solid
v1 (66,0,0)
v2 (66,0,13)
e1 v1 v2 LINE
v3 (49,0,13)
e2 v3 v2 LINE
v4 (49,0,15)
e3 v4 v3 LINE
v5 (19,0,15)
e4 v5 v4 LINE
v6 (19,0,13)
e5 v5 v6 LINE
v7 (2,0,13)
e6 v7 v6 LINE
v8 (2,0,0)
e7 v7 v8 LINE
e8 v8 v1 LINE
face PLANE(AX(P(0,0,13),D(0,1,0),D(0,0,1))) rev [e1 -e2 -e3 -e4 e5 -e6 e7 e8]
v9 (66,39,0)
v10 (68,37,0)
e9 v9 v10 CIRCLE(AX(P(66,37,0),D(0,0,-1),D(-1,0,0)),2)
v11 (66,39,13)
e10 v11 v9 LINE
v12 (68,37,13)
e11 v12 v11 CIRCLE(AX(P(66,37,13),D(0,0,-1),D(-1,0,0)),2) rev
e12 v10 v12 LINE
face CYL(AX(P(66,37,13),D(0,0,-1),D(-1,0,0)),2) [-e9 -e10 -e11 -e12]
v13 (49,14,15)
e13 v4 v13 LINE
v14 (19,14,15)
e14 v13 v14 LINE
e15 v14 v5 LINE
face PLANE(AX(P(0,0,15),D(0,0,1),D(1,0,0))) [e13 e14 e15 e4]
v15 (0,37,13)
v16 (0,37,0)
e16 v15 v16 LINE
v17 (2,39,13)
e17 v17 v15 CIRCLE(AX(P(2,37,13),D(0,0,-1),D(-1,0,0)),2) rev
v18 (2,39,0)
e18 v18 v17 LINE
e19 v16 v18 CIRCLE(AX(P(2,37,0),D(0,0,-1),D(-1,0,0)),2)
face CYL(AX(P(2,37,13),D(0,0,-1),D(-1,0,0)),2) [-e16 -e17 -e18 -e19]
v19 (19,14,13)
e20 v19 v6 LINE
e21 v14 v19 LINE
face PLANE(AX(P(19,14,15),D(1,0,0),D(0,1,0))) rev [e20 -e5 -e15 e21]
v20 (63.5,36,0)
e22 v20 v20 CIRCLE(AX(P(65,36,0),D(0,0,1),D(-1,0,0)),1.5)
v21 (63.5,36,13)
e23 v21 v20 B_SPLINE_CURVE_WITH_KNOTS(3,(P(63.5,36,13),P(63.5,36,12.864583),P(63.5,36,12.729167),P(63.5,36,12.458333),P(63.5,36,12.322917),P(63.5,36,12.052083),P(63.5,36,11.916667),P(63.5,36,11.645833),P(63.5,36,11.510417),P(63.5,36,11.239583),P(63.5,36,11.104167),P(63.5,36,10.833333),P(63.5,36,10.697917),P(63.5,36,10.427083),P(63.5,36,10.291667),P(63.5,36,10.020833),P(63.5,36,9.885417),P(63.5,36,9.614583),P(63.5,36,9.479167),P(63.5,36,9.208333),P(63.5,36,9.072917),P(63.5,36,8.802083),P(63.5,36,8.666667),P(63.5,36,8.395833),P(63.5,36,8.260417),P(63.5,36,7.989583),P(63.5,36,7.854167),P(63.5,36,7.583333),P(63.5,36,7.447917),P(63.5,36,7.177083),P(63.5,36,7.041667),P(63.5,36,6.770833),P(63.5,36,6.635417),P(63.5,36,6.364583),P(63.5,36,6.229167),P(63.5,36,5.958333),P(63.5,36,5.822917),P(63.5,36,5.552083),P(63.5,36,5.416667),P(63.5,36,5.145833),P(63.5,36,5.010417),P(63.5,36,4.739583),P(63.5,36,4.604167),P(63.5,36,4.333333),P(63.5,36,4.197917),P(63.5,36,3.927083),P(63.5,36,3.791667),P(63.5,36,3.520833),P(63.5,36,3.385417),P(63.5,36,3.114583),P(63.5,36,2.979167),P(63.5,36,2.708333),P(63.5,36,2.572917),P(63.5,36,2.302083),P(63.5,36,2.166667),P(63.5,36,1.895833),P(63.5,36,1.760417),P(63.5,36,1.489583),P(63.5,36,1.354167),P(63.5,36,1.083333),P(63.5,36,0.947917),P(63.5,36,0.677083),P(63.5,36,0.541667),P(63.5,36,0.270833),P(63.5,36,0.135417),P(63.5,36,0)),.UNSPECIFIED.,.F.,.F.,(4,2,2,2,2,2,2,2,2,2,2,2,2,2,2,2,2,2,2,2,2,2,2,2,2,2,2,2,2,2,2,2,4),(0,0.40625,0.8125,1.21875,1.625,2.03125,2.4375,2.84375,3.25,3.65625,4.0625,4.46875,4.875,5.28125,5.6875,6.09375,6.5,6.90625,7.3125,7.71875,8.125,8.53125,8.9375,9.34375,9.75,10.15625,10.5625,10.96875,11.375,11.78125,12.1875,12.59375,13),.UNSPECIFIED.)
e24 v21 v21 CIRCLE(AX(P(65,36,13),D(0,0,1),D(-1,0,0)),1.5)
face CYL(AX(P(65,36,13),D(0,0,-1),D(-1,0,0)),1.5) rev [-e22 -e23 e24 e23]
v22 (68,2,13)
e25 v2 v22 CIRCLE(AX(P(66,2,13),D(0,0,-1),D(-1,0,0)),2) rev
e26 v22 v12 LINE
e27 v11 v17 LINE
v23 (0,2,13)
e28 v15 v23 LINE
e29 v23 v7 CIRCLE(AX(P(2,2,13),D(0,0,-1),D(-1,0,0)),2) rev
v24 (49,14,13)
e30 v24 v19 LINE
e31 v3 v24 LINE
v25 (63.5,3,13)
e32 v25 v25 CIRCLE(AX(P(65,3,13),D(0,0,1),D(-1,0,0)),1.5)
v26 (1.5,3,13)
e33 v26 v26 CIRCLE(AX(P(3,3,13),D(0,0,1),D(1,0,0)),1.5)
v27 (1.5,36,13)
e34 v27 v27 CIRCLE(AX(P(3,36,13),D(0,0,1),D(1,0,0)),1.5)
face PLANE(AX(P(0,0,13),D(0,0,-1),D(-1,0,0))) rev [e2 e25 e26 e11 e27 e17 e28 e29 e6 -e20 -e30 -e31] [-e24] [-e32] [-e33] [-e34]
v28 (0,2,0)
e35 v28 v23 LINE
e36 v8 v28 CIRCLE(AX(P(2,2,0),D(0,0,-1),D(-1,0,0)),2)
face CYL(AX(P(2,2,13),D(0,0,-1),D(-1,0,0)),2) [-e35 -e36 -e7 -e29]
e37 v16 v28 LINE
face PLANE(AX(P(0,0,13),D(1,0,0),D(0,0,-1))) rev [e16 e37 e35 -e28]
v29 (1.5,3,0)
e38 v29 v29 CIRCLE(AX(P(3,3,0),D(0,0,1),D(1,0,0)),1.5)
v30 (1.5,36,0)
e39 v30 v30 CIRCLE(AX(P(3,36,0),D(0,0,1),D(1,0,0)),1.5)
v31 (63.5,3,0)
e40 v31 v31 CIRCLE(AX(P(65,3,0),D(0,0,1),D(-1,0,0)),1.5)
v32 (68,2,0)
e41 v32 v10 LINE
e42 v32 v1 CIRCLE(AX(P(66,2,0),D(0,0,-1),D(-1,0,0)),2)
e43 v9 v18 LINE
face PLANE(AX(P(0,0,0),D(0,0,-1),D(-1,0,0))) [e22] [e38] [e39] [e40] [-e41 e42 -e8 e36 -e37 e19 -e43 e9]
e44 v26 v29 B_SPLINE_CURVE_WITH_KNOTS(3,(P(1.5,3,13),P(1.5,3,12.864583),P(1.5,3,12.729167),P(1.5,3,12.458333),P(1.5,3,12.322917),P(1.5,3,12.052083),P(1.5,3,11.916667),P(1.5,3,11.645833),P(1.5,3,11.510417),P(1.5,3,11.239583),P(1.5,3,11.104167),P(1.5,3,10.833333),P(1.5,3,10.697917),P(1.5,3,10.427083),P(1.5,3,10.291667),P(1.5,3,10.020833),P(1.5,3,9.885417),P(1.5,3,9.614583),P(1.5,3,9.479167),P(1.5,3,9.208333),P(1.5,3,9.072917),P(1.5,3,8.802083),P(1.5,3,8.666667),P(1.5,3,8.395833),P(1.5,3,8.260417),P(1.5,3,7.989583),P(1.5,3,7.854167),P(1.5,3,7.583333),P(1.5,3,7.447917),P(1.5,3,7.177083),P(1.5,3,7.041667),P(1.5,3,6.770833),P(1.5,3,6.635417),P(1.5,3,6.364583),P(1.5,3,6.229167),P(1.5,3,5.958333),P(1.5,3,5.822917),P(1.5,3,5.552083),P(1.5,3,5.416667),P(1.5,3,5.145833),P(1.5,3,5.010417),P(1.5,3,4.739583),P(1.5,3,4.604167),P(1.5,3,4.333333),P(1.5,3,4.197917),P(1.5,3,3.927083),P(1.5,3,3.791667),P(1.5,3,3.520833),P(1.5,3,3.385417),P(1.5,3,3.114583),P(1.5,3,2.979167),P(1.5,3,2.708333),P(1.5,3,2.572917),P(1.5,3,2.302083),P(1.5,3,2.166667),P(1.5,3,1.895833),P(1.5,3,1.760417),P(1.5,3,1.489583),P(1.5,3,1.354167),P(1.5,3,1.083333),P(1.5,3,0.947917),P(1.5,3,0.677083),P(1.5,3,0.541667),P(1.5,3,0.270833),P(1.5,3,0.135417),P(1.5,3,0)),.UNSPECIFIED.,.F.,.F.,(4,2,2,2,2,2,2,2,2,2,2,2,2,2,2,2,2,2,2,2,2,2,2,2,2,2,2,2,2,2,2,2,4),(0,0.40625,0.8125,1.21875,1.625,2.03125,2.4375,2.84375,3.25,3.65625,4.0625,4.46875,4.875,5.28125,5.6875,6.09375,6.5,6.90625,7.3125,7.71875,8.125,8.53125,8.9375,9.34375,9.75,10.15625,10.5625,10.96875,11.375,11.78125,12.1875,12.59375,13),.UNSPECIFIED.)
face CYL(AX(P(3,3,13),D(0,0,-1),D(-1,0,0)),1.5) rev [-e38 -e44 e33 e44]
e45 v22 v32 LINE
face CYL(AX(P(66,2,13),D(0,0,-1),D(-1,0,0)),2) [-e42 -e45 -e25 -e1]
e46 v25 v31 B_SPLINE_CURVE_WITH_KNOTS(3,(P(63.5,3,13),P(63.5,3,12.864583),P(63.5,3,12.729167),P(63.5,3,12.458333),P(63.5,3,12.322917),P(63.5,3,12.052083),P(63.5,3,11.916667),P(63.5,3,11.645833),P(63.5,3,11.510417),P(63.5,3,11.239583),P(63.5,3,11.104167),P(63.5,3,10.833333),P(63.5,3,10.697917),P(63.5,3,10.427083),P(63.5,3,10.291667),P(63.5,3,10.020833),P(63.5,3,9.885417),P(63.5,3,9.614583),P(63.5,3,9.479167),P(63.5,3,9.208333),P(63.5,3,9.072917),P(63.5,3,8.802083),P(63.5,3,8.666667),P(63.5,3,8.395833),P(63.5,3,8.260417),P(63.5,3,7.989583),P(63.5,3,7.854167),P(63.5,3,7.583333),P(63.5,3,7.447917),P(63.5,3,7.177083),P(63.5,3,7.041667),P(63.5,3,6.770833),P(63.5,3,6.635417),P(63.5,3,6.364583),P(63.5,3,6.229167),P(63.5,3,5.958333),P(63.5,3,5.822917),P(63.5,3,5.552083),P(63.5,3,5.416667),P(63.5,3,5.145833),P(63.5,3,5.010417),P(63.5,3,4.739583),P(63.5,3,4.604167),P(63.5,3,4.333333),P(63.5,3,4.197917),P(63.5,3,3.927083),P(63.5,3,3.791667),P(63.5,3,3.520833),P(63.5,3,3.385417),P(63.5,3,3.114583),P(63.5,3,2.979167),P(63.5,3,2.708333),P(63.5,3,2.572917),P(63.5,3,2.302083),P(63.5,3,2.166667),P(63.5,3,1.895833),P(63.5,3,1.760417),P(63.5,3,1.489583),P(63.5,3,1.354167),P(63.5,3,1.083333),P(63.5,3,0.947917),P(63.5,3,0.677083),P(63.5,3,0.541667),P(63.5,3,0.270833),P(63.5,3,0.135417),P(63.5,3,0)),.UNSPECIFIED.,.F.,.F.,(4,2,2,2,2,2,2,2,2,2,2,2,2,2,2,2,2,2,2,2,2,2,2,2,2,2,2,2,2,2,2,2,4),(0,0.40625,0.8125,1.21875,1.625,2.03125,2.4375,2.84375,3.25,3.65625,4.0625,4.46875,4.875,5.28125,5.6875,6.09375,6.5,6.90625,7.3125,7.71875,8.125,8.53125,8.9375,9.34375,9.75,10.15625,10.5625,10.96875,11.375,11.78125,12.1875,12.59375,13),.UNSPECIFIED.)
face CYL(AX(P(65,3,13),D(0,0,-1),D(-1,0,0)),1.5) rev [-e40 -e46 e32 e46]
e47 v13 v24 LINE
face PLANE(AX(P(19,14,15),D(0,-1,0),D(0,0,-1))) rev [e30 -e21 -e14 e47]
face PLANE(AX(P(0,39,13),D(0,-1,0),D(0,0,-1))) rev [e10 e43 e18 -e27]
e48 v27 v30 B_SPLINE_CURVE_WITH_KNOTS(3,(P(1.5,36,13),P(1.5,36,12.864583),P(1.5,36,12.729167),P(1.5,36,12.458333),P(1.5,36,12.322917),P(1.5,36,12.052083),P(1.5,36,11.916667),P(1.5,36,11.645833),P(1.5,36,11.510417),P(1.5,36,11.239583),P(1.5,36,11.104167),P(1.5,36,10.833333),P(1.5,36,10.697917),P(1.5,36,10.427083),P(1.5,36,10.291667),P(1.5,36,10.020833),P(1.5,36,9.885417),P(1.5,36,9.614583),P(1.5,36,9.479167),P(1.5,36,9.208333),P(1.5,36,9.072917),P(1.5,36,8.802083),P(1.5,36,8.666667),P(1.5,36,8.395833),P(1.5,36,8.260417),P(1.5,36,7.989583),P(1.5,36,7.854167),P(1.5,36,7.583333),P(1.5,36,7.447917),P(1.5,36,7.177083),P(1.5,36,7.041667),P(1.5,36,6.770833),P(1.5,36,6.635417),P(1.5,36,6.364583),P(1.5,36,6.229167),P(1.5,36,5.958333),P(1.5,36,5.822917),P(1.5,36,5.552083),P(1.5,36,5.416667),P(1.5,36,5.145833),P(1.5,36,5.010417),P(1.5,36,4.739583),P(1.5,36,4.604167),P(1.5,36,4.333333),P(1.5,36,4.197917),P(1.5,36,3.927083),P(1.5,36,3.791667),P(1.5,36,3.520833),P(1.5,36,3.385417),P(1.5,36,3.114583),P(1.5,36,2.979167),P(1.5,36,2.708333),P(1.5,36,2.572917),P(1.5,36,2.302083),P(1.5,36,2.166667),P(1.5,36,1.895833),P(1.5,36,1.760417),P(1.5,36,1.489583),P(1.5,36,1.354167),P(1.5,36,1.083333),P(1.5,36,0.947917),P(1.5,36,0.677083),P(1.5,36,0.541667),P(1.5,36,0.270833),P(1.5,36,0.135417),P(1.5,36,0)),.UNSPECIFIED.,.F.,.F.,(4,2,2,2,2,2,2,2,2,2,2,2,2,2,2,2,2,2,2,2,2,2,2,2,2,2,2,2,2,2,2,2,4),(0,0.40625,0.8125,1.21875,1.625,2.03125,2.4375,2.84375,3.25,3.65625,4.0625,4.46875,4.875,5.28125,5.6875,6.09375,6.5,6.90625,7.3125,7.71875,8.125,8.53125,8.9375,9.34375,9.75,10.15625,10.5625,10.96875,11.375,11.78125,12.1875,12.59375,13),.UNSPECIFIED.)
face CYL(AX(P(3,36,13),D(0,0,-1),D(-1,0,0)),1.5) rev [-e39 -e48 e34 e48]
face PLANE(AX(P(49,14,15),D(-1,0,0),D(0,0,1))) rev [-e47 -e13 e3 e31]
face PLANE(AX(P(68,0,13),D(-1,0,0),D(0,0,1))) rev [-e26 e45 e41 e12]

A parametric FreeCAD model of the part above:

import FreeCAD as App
import Part
import Sketcher
Q = App.Units.Quantity


def edges_at(feature, points):
    """Names of the edges that pass closest to the given points."""
    edges = feature.Shape.Edges
    near = lambda p: min(range(len(edges)), key=lambda i: edges[i].distToShape(Part.Vertex(*p))[0])
    return sorted({f"Edge{near(p) + 1}" for p in points})

doc = App.newDocument("Part")
params = doc.addObject("Spreadsheet::Sheet", "Params")
for row, (alias, value) in enumerate([
    ("sketch1_diameter", "3 mm"),
    ("sketch1_width", "68 mm"),
    ("sketch1_height", "39 mm"),
    ("pad1_length", "13 mm"),
    ("fillet_radius", "2 mm"),
    ("sketch2_width", "30 mm"),
    ("sketch2_height", "14 mm"),
    ("pad2_length", "2 mm"),
], start=1):
    params.set(f"A{row}", alias)
    params.set(f"B{row}", "=" + value)
    params.setAlias(f"B{row}", alias)

body = doc.addObject("PartDesign::Body", "Body")

# Sketch on XY plane
sketch1 = body.newObject("Sketcher::SketchObject", "Sketch")
sketch1.AttachmentSupport = (doc.getObject("XY_Plane"), [""])
sketch1.MapMode = "FlatFace"
sketch1.addGeometry([
    Part.LineSegment(App.Vector(0, 39, 0), App.Vector(0, 0, 0)),  # 0
    Part.LineSegment(App.Vector(0, 0, 0), App.Vector(68, 0, 0)),  # 1
    Part.LineSegment(App.Vector(68, 0, 0), App.Vector(68, 39, 0)),  # 2
    Part.LineSegment(App.Vector(68, 39, 0), App.Vector(0, 39, 0)),  # 3
    Part.Circle(App.Vector(3, 3, 0), App.Vector(0, 0, 1), 1.5),  # 4
    Part.Circle(App.Vector(65, 3, 0), App.Vector(0, 0, 1), 1.5),  # 5
    Part.Circle(App.Vector(3, 36, 0), App.Vector(0, 0, 1), 1.5),  # 6
    Part.Circle(App.Vector(65, 36, 0), App.Vector(0, 0, 1), 1.5),  # 7
], False)
sketch1.addConstraint([
    Sketcher.Constraint("Coincident", 0, 2, 1, 1),
    Sketcher.Constraint("Coincident", 1, 2, 2, 1),
    Sketcher.Constraint("Coincident", 2, 2, 3, 1),
    Sketcher.Constraint("Coincident", 3, 2, 0, 1),
    Sketcher.Constraint("Vertical", 0),
    Sketcher.Constraint("Horizontal", 1),
    Sketcher.Constraint("Vertical", 2),
    Sketcher.Constraint("Horizontal", 3),
    Sketcher.Constraint("Coincident", 0, 2, -1, 1),
    Sketcher.Constraint("Equal", 4, 5),
    Sketcher.Constraint("Equal", 5, 6),
    Sketcher.Constraint("Equal", 6, 7),
    Sketcher.Constraint("Horizontal", 4, 3, 5, 3),
    Sketcher.Constraint("Horizontal", 6, 3, 7, 3),
    Sketcher.Constraint("Vertical", 4, 3, 6, 3),
    Sketcher.Constraint("Vertical", 5, 3, 7, 3),
    Sketcher.Constraint("Diameter", 4, Q("3 mm")),
    Sketcher.Constraint("DistanceX", 1, 1, 1, 2, Q("68 mm")),
    Sketcher.Constraint("DistanceY", 0, 2, 0, 1, Q("39 mm")),
    Sketcher.Constraint("DistanceX", -1, 1, 4, 3, Q("3 mm")),
    Sketcher.Constraint("DistanceY", -1, 1, 4, 3, Q("3 mm")),
    Sketcher.Constraint("DistanceX", -1, 1, 5, 3, Q("65 mm")),
    Sketcher.Constraint("DistanceY", -1, 1, 6, 3, Q("36 mm")),
])
sketch1.setExpression("Constraints[16]", "Params.sketch1_diameter")
sketch1.setExpression("Constraints[17]", "Params.sketch1_width")
sketch1.setExpression("Constraints[18]", "Params.sketch1_height")
pad1 = body.newObject("PartDesign::Pad", "Pad")
pad1.Profile = sketch1
pad1.setExpression("Length", "Params.pad1_length")
doc.recompute()

fillet = body.newObject("PartDesign::Fillet", "Fillet")
fillet.Base = (pad1, edges_at(pad1, [
    (0, 39, 6.5),
    (68, 39, 6.5),
    (68, 0, 6.5),
    (0, 0, 6.5),
]))
fillet.setExpression("Radius", "Params.fillet_radius")

# Sketch on XY plane
sketch2 = body.newObject("Sketcher::SketchObject", "Sketch001")
sketch2.AttachmentSupport = (doc.getObject("XY_Plane"), [""])
sketch2.MapMode = "FlatFace"
sketch2.AttachmentOffset = App.Placement(App.Vector(0, 0, 13), App.Rotation())
sketch2.addGeometry([
    Part.LineSegment(App.Vector(19, 14, 0), App.Vector(19, 0, 0)),
    Part.LineSegment(App.Vector(19, 0, 0), App.Vector(49, 0, 0)),
    Part.LineSegment(App.Vector(49, 0, 0), App.Vector(49, 14, 0)),
    Part.LineSegment(App.Vector(49, 14, 0), App.Vector(19, 14, 0)),
], False)
sketch2.addConstraint([
    Sketcher.Constraint("Coincident", 0, 2, 1, 1),
    Sketcher.Constraint("Coincident", 1, 2, 2, 1),
    Sketcher.Constraint("Coincident", 2, 2, 3, 1),
    Sketcher.Constraint("Coincident", 3, 2, 0, 1),
    Sketcher.Constraint("Vertical", 0),
    Sketcher.Constraint("Horizontal", 1),
    Sketcher.Constraint("Vertical", 2),
    Sketcher.Constraint("Horizontal", 3),
    Sketcher.Constraint("PointOnObject", 0, 2, -1),
    Sketcher.Constraint("DistanceX", 1, 1, 1, 2, Q("30 mm")),
    Sketcher.Constraint("DistanceY", 0, 2, 0, 1, Q("14 mm")),
    Sketcher.Constraint("DistanceX", -1, 1, 0, 2, Q("19 mm")),
])
sketch2.setExpression("Constraints[9]", "Params.sketch2_width")
sketch2.setExpression("Constraints[10]", "Params.sketch2_height")
pad2 = body.newObject("PartDesign::Pad", "Pad001")
pad2.Profile = sketch2
pad2.setExpression("Length", "Params.pad2_length")

doc.recompute()
